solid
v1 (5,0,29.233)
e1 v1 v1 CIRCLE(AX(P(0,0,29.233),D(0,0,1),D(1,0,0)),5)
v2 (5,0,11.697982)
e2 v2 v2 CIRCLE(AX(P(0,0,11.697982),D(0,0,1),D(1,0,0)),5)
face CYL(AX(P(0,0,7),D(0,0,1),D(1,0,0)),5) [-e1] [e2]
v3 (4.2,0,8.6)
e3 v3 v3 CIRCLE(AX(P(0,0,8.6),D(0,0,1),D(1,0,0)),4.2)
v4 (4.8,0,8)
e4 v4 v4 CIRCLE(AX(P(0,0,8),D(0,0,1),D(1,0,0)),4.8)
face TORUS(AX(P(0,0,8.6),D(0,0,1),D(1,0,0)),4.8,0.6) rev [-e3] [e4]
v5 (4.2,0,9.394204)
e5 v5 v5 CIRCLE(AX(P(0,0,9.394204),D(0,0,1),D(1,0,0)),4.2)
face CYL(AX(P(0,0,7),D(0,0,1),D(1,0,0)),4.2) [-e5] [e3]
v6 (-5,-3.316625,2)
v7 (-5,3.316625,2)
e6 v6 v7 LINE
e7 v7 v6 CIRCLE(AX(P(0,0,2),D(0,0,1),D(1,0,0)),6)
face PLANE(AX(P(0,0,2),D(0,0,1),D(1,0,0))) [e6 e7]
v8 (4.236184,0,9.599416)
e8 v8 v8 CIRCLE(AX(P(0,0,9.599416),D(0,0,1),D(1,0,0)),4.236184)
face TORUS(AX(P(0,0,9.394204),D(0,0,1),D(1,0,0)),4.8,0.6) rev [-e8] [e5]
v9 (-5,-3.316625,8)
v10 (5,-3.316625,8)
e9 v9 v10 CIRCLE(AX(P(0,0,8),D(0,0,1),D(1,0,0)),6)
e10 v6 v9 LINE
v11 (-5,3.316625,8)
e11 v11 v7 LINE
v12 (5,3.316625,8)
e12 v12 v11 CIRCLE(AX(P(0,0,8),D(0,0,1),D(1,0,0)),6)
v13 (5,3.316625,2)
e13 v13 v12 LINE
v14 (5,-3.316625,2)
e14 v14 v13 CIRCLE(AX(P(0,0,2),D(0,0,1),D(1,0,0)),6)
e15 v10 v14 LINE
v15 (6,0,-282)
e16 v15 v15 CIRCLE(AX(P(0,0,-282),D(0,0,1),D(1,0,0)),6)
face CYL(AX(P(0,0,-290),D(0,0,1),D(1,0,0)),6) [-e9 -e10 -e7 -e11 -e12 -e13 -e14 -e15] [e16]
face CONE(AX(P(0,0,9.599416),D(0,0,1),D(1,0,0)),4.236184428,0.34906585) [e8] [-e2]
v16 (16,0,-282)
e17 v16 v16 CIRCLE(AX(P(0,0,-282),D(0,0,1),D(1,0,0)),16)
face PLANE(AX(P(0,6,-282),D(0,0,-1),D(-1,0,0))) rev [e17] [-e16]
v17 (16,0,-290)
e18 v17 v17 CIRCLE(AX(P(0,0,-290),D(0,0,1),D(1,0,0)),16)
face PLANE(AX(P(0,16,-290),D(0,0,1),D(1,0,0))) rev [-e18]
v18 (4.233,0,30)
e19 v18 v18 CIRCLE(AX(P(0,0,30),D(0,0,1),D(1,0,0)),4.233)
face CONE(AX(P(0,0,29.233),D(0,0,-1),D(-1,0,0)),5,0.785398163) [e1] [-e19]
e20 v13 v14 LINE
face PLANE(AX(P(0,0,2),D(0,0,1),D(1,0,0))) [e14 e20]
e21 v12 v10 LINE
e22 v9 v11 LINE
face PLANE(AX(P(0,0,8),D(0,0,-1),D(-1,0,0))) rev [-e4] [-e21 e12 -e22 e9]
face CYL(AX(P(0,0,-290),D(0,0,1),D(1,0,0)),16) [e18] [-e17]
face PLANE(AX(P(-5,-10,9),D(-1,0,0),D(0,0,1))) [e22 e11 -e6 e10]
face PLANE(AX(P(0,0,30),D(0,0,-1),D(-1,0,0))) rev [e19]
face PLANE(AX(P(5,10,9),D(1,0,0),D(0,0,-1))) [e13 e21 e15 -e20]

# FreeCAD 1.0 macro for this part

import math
import FreeCAD as App
import Part
import Sketcher

V = App.Vector
Q = App.Units.Quantity


def add_polygon(sketch, points):
    """Adds a closed chain of lines whose ends are joined by coincident constraints."""
    first, n = sketch.GeometryCount, len(points)
    for a, b in zip(points, points[1:] + points[:1]):
        sketch.addGeometry(Part.LineSegment(App.Vector(*a, 0), App.Vector(*b, 0)), False)
    for i in range(n):
        sketch.addConstraint(Sketcher.Constraint("Coincident", first + i, 2, first + (i + 1) % n, 1))

doc = App.newDocument("Part")
body = doc.addObject("PartDesign::Body", "Body")

# Sketch on YZ plane
sketch1 = body.newObject("Sketcher::SketchObject", "Sketch")
sketch1.AttachmentSupport = (doc.getObject("YZ_Plane"), [""])
sketch1.MapMode = "FlatFace"
add_polygon(sketch1, [(6, 8), (0, 8), (0, -290), (16, -290), (16, -282), (6, -282)])  # lines 0-5
sketch1.addConstraint([
    Sketcher.Constraint("Horizontal", 0),
    Sketcher.Constraint("Vertical", 1),
    Sketcher.Constraint("Horizontal", 2),
    Sketcher.Constraint("Vertical", 3),
    Sketcher.Constraint("Horizontal", 4),
    Sketcher.Constraint("Vertical", 5),
    Sketcher.Constraint("PointOnObject", 0, 2, -2),
    Sketcher.Constraint("DistanceX", 0, 2, 0, 1, Q("6 mm")),
    Sketcher.Constraint("DistanceX", 2, 1, 2, 2, Q("16 mm")),
    Sketcher.Constraint("DistanceY", 1, 2, 1, 1, Q("298 mm")),
    Sketcher.Constraint("DistanceY", 3, 1, 3, 2, Q("8 mm")),
    Sketcher.Constraint("DistanceY", -1, 1, 0, 2, Q("8 mm")),
])
revolution = body.newObject("PartDesign::Revolution", "Revolution")
revolution.Profile = sketch1
revolution.ReferenceAxis = (sketch1, ["V_Axis"])
revolution.Angle = 360

# Sketch on YZ plane
sketch2 = body.newObject("Sketcher::SketchObject", "Sketch001")
sketch2.AttachmentSupport = (doc.getObject("YZ_Plane"), [""])
sketch2.MapMode = "FlatFace"
sketch2.addGeometry([
    Part.LineSegment(V(4.23, 30, 0), V(0, 30, 0)),  # 0
    Part.LineSegment(V(0, 30, 0), V(0, 7, 0)),  # 1
    Part.LineSegment(V(0, 7, 0), V(5, 7, 0)),  # 2
    Part.LineSegment(V(5, 7, 0), V(5, 8, 0)),  # 3
    Part.LineSegment(V(5, 8, 0), V(4.8, 8, 0)),  # 4
    Part.ArcOfCircle(Part.Circle(V(4.8, 8.6, 0), V(0, 0, 1), 0.6), math.radians(180), math.radians(270)),  # 5
    Part.LineSegment(V(4.2, 8.6, 0), V(4.2, 9.39, 0)),  # 6
    Part.ArcOfCircle(Part.Circle(V(4.8, 9.39, 0), V(0, 0, 1), 0.6), math.radians(160), math.radians(180)),  # 7
    Part.LineSegment(V(4.24, 9.6, 0), V(5, 11.7, 0)),  # 8
    Part.LineSegment(V(5, 11.7, 0), V(5, 29.23, 0)),  # 9
    Part.LineSegment(V(5, 29.23, 0), V(4.23, 30, 0)),  # 10
], False)
sketch2.addConstraint([
    Sketcher.Constraint("Coincident", 0, 2, 1, 1),
    Sketcher.Constraint("Coincident", 1, 2, 2, 1),
    Sketcher.Constraint("Coincident", 2, 2, 3, 1),
    Sketcher.Constraint("Coincident", 3, 2, 4, 1),
    Sketcher.Constraint("Tangent", 4, 2, 5, 2),
    Sketcher.Constraint("Tangent", 5, 1, 6, 1),
    Sketcher.Constraint("Tangent", 6, 2, 7, 2),
    Sketcher.Constraint("Tangent", 7, 1, 8, 1),
    Sketcher.Constraint("Coincident", 8, 2, 9, 1),
    Sketcher.Constraint("Coincident", 9, 2, 10, 1),
    Sketcher.Constraint("Coincident", 10, 2, 0, 1),
    Sketcher.Constraint("Horizontal", 0),
    Sketcher.Constraint("Vertical", 1),
    Sketcher.Constraint("Horizontal", 2),
    Sketcher.Constraint("Vertical", 3),
    Sketcher.Constraint("Horizontal", 4),
    Sketcher.Constraint("Vertical", 6),
    Sketcher.Constraint("Vertical", 9),
    Sketcher.Constraint("Equal", 5, 7),
    Sketcher.Constraint("PointOnObject", 0, 2, -2),
    Sketcher.Constraint("Vertical", 3, 2, 8, 2),
    Sketcher.Constraint("Radius", 5, Q("0.6 mm")),
    Sketcher.Constraint("DistanceX", 2, 1, 2, 2, Q("5 mm")),
    Sketcher.Constraint("DistanceY", 1, 2, 1, 1, Q("23 mm")),
    Sketcher.Constraint("DistanceY", 3, 1, 3, 2, Q("1 mm")),
    Sketcher.Constraint("Angle", 8, Q("70 deg")),
    Sketcher.Constraint("Angle", 10, Q("135 deg")),
    Sketcher.Constraint("DistanceX", 4, 2, 4, 1, Q("0.2 mm")),
    Sketcher.Constraint("DistanceY", -1, 1, 0, 2, Q("30 mm")),
    Sketcher.Constraint("DistanceX", 0, 2, 0, 1, Q("4.233 mm")),
    Sketcher.Constraint("DistanceY", 9, 1, 9, 2, Q("17.535018 mm")),
])
revolution2 = body.newObject("PartDesign::Revolution", "Revolution001")
revolution2.Profile = sketch2
revolution2.ReferenceAxis = (sketch2, ["V_Axis"])
revolution2.Angle = 360

# Sketch on XY plane
sketch3 = body.newObject("Sketcher::SketchObject", "Sketch002")
sketch3.AttachmentSupport = (doc.getObject("XY_Plane"), [""])
sketch3.MapMode = "FlatFace"
sketch3.AttachmentOffset = App.Placement(V(0, 0, 2), App.Rotation())
add_polygon(sketch3, [(-10, 20), (-10, -10), (-5, -10), (-5, 10), (5, 10), (5, -10), (10, -10), (10, 20)])  # lines 0-7
sketch3.addConstraint([
    Sketcher.Constraint("Vertical", 0),
    Sketcher.Constraint("Horizontal", 1),
    Sketcher.Constraint("Vertical", 2),
    Sketcher.Constraint("Horizontal", 3),
    Sketcher.Constraint("Vertical", 4),
    Sketcher.Constraint("Horizontal", 5),
    Sketcher.Constraint("Vertical", 6),
    Sketcher.Constraint("Horizontal", 7),
    Sketcher.Constraint("Symmetric", 1, 2, 3, 2, -1, 1),
    Sketcher.Constraint("Symmetric", 0, 2, 5, 2, -2),
    Sketcher.Constraint("Equal", 7, 2),
    Sketcher.Constraint("DistanceX", 1, 1, 1, 2, Q("5 mm")),
    Sketcher.Constraint("DistanceX", 3, 1, 3, 2, Q("10 mm")),
    Sketcher.Constraint("DistanceY", 0, 2, 0, 1, Q("30 mm")),
])
pocket1 = body.newObject("PartDesign::Pocket", "Pocket")
pocket1.Profile = sketch3
pocket1.Length = 7
pocket1.Reversed = True

doc.recompute()
